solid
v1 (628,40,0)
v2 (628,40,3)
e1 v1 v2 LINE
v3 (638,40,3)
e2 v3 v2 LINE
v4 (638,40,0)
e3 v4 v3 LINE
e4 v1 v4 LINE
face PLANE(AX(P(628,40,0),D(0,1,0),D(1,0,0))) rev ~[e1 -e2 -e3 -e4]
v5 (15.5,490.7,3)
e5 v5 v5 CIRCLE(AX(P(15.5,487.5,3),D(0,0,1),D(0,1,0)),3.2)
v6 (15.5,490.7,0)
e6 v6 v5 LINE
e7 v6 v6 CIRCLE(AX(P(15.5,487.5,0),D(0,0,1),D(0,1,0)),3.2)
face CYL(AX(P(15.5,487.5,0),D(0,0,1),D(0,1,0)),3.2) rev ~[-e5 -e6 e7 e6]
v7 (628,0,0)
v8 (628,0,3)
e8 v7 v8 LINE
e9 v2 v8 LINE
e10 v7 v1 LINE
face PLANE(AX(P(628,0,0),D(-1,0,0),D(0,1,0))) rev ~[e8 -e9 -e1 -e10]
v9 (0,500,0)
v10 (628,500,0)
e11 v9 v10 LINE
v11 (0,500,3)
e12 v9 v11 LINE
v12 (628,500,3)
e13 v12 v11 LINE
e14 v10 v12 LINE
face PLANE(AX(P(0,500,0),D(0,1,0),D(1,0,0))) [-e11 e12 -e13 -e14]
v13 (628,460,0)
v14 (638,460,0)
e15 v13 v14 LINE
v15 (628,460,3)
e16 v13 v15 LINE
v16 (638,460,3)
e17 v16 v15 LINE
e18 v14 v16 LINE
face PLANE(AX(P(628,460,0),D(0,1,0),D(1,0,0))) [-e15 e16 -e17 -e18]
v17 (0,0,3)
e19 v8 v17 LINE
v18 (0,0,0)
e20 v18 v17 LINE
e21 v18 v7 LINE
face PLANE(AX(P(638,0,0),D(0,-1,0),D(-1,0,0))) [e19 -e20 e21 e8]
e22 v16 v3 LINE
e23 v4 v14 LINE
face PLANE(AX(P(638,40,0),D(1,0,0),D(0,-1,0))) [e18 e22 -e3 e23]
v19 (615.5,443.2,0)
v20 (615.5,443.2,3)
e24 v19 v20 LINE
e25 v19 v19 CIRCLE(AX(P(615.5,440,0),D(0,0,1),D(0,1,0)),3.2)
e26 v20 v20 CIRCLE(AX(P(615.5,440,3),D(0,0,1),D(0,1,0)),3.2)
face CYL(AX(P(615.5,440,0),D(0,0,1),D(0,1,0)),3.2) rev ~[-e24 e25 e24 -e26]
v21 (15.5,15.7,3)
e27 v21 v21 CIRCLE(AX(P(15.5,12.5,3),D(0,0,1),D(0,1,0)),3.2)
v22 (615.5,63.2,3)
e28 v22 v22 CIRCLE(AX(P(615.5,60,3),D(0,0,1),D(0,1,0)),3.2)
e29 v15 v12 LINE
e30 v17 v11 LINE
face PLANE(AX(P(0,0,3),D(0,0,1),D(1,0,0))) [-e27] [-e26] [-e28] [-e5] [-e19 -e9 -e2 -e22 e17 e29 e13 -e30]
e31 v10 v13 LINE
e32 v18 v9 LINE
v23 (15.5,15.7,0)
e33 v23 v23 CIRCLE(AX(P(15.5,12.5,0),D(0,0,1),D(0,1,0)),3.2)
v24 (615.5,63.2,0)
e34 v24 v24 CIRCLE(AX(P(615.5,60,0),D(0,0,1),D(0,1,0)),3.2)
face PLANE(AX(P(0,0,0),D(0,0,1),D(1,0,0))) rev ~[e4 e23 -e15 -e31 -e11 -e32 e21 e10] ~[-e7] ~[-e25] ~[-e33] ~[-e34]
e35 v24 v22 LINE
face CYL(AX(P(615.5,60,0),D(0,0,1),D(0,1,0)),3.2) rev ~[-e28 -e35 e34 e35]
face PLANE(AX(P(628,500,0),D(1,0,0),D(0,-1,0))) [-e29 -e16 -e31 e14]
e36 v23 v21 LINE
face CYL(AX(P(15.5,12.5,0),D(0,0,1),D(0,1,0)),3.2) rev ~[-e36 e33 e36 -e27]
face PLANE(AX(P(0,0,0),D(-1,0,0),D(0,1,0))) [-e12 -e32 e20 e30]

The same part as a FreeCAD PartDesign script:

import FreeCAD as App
import Part
import Sketcher


def add_polygon(sketch, points):
    """Adds a closed chain of lines whose ends are joined by coincident constraints."""
    first, n = sketch.GeometryCount, len(points)
    for a, b in zip(points, points[1:] + points[:1]):
        sketch.addGeometry(Part.LineSegment(App.Vector(*a, 0), App.Vector(*b, 0)), False)
    for i in range(n):
        sketch.addConstraint(Sketcher.Constraint("Coincident", first + i, 2, first + (i + 1) % n, 1))

doc = App.newDocument("Part")
body = doc.addObject("PartDesign::Body", "Body")

sketch1 = body.newObject("Sketcher::SketchObject", "Sketch")
sketch1.AttachmentSupport = (doc.getObject("XY_Plane"), [""])
sketch1.MapMode = "FlatFace"
add_polygon(sketch1, [(638, 0), (638, 500), (0, 500), (0, 0)])
sketch1.addConstraint(Sketcher.Constraint("Vertical", 0))
sketch1.addConstraint(Sketcher.Constraint("Horizontal", 1))
sketch1.addConstraint(Sketcher.Constraint("Vertical", 2))
sketch1.addConstraint(Sketcher.Constraint("Horizontal", 3))
sketch1.addConstraint(Sketcher.Constraint("Coincident", 2, 2, -1, 1))
sketch1.addConstraint(Sketcher.Constraint("DistanceX", 1, 2, 1, 1, 638.0))
sketch1.addConstraint(Sketcher.Constraint("DistanceY", 0, 1, 0, 2, 500.0))
pad1 = body.newObject("PartDesign::Pad", "Pad")
pad1.Profile = sketch1
pad1.Length = 3

sketch2 = body.newObject("Sketcher::SketchObject", "Sketch001")
sketch2.AttachmentSupport = (doc.getObject("XY_Plane"), [""])
sketch2.MapMode = "FlatFace"
sketch2.addGeometry(Part.Circle(App.Vector(615.5, 60, 0), App.Vector(0, 0, 1), 3.2), False)
sketch2.addGeometry(Part.Circle(App.Vector(615.5, 440, 0), App.Vector(0, 0, 1), 3.2), False)
sketch2.addGeometry(Part.Circle(App.Vector(15.5, 487.5, 0), App.Vector(0, 0, 1), 3.2), False)
sketch2.addGeometry(Part.Circle(App.Vector(15.5, 12.5, 0), App.Vector(0, 0, 1), 3.2), False)
sketch2.addConstraint(Sketcher.Constraint("Equal", 0, 1))
sketch2.addConstraint(Sketcher.Constraint("Equal", 1, 2))
sketch2.addConstraint(Sketcher.Constraint("Equal", 2, 3))
sketch2.addConstraint(Sketcher.Constraint("Vertical", 0, 3, 1, 3))
sketch2.addConstraint(Sketcher.Constraint("Vertical", 2, 3, 3, 3))
sketch2.addConstraint(Sketcher.Constraint("Diameter", 0, 6.4))
sketch2.addConstraint(Sketcher.Constraint("DistanceY", -1, 1, 0, 3, 60.0))
sketch2.addConstraint(Sketcher.Constraint("DistanceY", -1, 1, 1, 3, 440.0))
sketch2.addConstraint(Sketcher.Constraint("DistanceX", 2, 3, 1, 3, 600.0))
sketch2.addConstraint(Sketcher.Constraint("DistanceY", 3, 3, 2, 3, 475.0))
sketch2.addConstraint(Sketcher.Constraint("DistanceX", -1, 1, 0, 3, 615.5))
sketch2.addConstraint(Sketcher.Constraint("DistanceY", -1, 1, 2, 3, 487.5))
doc.recompute()
hole = body.newObject("PartDesign::Hole", "Hole")
hole.Profile = sketch2
hole.ThreadType = "None"
hole.Diameter = 6.4
hole.DepthType = "ThroughAll"
hole.Reversed = True

sketch3 = body.newObject("Sketcher::SketchObject", "Sketch002")
sketch3.AttachmentSupport = (doc.getObject("XY_Plane"), [""])
sketch3.MapMode = "FlatFace"
add_polygon(sketch3, [(628, 0), (638, 0), (638, 40), (628, 40)])
add_polygon(sketch3, [(628, 460), (638, 460), (638, 500), (628, 500)])
sketch3.addConstraint(Sketcher.Constraint("Horizontal", 0))
sketch3.addConstraint(Sketcher.Constraint("Vertical", 1))
sketch3.addConstraint(Sketcher.Constraint("Horizontal", 2))
sketch3.addConstraint(Sketcher.Constraint("Vertical", 3))
sketch3.addConstraint(Sketcher.Constraint("Horizontal", 4))
sketch3.addConstraint(Sketcher.Constraint("Vertical", 5))
sketch3.addConstraint(Sketcher.Constraint("Horizontal", 6))
sketch3.addConstraint(Sketcher.Constraint("Vertical", 7))
sketch3.addConstraint(Sketcher.Constraint("PointOnObject", 0, 2, -1))
sketch3.addConstraint(Sketcher.Constraint("Vertical", 1, 2, 4, 2))
sketch3.addConstraint(Sketcher.Constraint("Vertical", 3, 2, 6, 2))
sketch3.addConstraint(Sketcher.Constraint("Equal", 3, 5))
sketch3.addConstraint(Sketcher.Constraint("DistanceX", 0, 1, 0, 2, 10.0))
sketch3.addConstraint(Sketcher.Constraint("DistanceX", -1, 1, 0, 2, 638.0))
sketch3.addConstraint(Sketcher.Constraint("DistanceY", -1, 1, 5, 2, 500.0))
sketch3.addConstraint(Sketcher.Constraint("DistanceY", 1, 1, 1, 2, 40.0))
pocket1 = body.newObject("PartDesign::Pocket", "Pocket")
pocket1.Profile = sketch3
pocket1.Type = "ThroughAll"
pocket1.Reversed = True

doc.recompute()
